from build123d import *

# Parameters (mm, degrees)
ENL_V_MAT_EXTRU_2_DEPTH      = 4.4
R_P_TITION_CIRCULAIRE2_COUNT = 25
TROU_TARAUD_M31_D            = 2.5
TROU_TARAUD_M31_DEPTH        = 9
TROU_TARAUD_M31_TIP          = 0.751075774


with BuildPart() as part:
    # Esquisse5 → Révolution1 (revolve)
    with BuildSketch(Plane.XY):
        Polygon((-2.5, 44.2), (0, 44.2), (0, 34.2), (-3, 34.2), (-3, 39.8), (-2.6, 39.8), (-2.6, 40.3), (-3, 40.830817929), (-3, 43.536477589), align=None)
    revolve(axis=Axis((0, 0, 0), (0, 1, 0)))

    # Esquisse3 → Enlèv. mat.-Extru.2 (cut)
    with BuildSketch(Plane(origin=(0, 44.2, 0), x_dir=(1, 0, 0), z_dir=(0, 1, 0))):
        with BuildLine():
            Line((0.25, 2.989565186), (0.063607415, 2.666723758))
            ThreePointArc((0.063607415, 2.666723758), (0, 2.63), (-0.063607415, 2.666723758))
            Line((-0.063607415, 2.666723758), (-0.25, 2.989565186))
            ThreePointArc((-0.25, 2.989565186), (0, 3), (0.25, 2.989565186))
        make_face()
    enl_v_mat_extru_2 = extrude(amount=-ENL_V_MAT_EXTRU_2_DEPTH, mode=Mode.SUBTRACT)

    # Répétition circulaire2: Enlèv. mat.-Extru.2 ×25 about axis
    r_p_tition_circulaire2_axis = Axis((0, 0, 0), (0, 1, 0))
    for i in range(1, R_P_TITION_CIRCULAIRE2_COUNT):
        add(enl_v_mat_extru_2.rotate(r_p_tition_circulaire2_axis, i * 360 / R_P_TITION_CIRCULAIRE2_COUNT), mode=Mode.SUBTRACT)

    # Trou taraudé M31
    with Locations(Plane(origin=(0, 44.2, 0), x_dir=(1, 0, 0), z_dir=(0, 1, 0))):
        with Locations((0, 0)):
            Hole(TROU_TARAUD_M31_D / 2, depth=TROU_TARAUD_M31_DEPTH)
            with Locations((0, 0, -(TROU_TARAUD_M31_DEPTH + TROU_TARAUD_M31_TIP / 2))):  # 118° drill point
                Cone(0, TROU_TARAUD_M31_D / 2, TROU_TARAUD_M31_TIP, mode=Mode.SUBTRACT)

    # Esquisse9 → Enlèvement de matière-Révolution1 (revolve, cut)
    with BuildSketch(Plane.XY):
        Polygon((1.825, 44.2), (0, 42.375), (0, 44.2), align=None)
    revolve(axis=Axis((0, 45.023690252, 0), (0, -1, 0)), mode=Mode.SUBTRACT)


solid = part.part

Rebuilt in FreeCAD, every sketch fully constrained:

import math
import FreeCAD as App
import Part
import Sketcher
from FreeCAD import Vector
Q = App.Units.Quantity

doc = App.newDocument("Part")
body = doc.addObject("PartDesign::Body", "Body")

# Sketch on XY plane
sketch1 = doc.addObject("Sketcher::SketchObject", "Sketch")
body.addObject(sketch1)
sketch1.AttachmentSupport = (doc.XY_Plane, [""])
sketch1.MapMode = "FlatFace"
sketch1.addGeometry(Part.LineSegment(Vector(0, 44.2, 0), Vector(-2.5, 44.2, 0)), False)
sketch1.addGeometry(Part.LineSegment(Vector(-2.5, 44.2, 0), Vector(-3, 43.54, 0)), False)
sketch1.addGeometry(Part.LineSegment(Vector(-3, 43.54, 0), Vector(-3, 40.83, 0)), False)
sketch1.addGeometry(Part.LineSegment(Vector(-3, 40.83, 0), Vector(-2.6, 40.3, 0)), False)
sketch1.addGeometry(Part.LineSegment(Vector(-2.6, 40.3, 0), Vector(-2.6, 39.8, 0)), False)
sketch1.addGeometry(Part.LineSegment(Vector(-2.6, 39.8, 0), Vector(-3, 39.8, 0)), False)
sketch1.addGeometry(Part.LineSegment(Vector(-3, 39.8, 0), Vector(-3, 34.2, 0)), False)
sketch1.addGeometry(Part.LineSegment(Vector(-3, 34.2, 0), Vector(0, 34.2, 0)), False)
sketch1.addGeometry(Part.LineSegment(Vector(0, 34.2, 0), Vector(0, 44.2, 0)), False)
sketch1.addConstraint(Sketcher.Constraint("Coincident", 0, 2, 1, 1))
sketch1.addConstraint(Sketcher.Constraint("Coincident", 1, 2, 2, 1))
sketch1.addConstraint(Sketcher.Constraint("Coincident", 2, 2, 3, 1))
sketch1.addConstraint(Sketcher.Constraint("Coincident", 3, 2, 4, 1))
sketch1.addConstraint(Sketcher.Constraint("Coincident", 4, 2, 5, 1))
sketch1.addConstraint(Sketcher.Constraint("Coincident", 5, 2, 6, 1))
sketch1.addConstraint(Sketcher.Constraint("Coincident", 6, 2, 7, 1))
sketch1.addConstraint(Sketcher.Constraint("Coincident", 7, 2, 8, 1))
sketch1.addConstraint(Sketcher.Constraint("Coincident", 8, 2, 0, 1))
sketch1.addConstraint(Sketcher.Constraint("Horizontal", 0))
sketch1.addConstraint(Sketcher.Constraint("Vertical", 2))
sketch1.addConstraint(Sketcher.Constraint("Vertical", 4))
sketch1.addConstraint(Sketcher.Constraint("Horizontal", 5))
sketch1.addConstraint(Sketcher.Constraint("Vertical", 6))
sketch1.addConstraint(Sketcher.Constraint("Horizontal", 7))
sketch1.addConstraint(Sketcher.Constraint("Vertical", 8))
sketch1.addConstraint(Sketcher.Constraint("PointOnObject", 7, 2, -2))
sketch1.addConstraint(Sketcher.Constraint("Vertical", 2, 2, 5, 2))
sketch1.addConstraint(Sketcher.Constraint("DistanceX", 7, 1, 7, 2, Q("3 mm")))
sketch1.addConstraint(Sketcher.Constraint("DistanceY", 8, 1, 8, 2, Q("10 mm")))
sketch1.addConstraint(Sketcher.Constraint("Angle", 1, Q("-127 deg")))
sketch1.addConstraint(Sketcher.Constraint("Angle", 3, Q("-53 deg")))
sketch1.addConstraint(Sketcher.Constraint("DistanceX", 0, 2, 0, 1, Q("2.5 mm")))
sketch1.addConstraint(Sketcher.Constraint("DistanceX", 5, 2, 5, 1, Q("0.4 mm")))
sketch1.addConstraint(Sketcher.Constraint("DistanceY", 4, 2, 4, 1, Q("0.5 mm")))
sketch1.addConstraint(Sketcher.Constraint("DistanceY", 6, 2, 6, 1, Q("5.6 mm")))
sketch1.addConstraint(Sketcher.Constraint("DistanceY", -1, 1, 0, 2, Q("44.2 mm")))
revolution = doc.addObject("PartDesign::Revolution", "Revolution")
body.addObject(revolution)
revolution.Profile = sketch1
revolution.ReferenceAxis = (sketch1, ["V_Axis"])
revolution.Angle = 360

# Sketch on XZ plane
sketch2 = doc.addObject("Sketcher::SketchObject", "Sketch001")
body.addObject(sketch2)
sketch2.AttachmentSupport = (doc.XZ_Plane, [""])
sketch2.MapMode = "FlatFace"
sketch2.AttachmentOffset = App.Placement(Vector(0, 0, -44.2), App.Rotation())
sketch2.addGeometry(Part.LineSegment(Vector(0.06, -2.67, 0), Vector(0.25, -2.99, 0)), False)
sketch2.addGeometry(Part.ArcOfCircle(Part.Circle(Vector(0, 0, 0), Vector(0, 0, 1), 3), math.radians(-94.78), math.radians(-85.22)), False)
sketch2.addGeometry(Part.LineSegment(Vector(-0.25, -2.99, 0), Vector(-0.06, -2.67, 0)), False)
sketch2.addGeometry(Part.ArcOfCircle(Part.Circle(Vector(0, -2.7, 0), Vector(0, 0, 1), 0.07), math.radians(30), math.radians(150)), False)
sketch2.addConstraint(Sketcher.Constraint("Coincident", 0, 2, 1, 2))
sketch2.addConstraint(Sketcher.Constraint("Coincident", 1, 1, 2, 1))
sketch2.addConstraint(Sketcher.Constraint("Tangent", 2, 2, 3, 2))
sketch2.addConstraint(Sketcher.Constraint("Tangent", 3, 1, 0, 1))
sketch2.addConstraint(Sketcher.Constraint("Coincident", 1, 3, -1, 1))
sketch2.addConstraint(Sketcher.Constraint("Symmetric", 2, 2, 3, 1, -2))
sketch2.addConstraint(Sketcher.Constraint("Radius", 1, Q("3 mm")))
sketch2.addConstraint(Sketcher.Constraint("Angle", 0, Q("-60 deg")))
sketch2.addConstraint(Sketcher.Constraint("DistanceX", 1, 1, 0, 2, Q("0.5 mm")))
sketch2.addConstraint(Sketcher.Constraint("Radius", 3, Q("0.073448 mm")))
pocket1 = doc.addObject("PartDesign::Pocket", "Pocket")
body.addObject(pocket1)
pocket1.Profile = sketch2
pocket1.Length = 4.4
pocket1.Reversed = True
doc.recompute()

polarpattern = doc.addObject("PartDesign::PolarPattern", "PolarPattern")
body.addObject(polarpattern)
polarpattern.Originals = [pocket1]
polarpattern.Axis = (doc.Y_Axis, [""])
polarpattern.Angle = 360
polarpattern.Occurrences = 25
body.Tip = polarpattern

# Sketch on XZ plane
sketch3 = doc.addObject("Sketcher::SketchObject", "Sketch002")
body.addObject(sketch3)
sketch3.AttachmentSupport = (doc.XZ_Plane, [""])
sketch3.MapMode = "FlatFace"
sketch3.AttachmentOffset = App.Placement(Vector(0, 0, -44.2), App.Rotation())
sketch3.addGeometry(Part.Circle(Vector(0, 0, 0), Vector(0, 0, 1), 1.2), False)
sketch3.addConstraint(Sketcher.Constraint("Coincident", 0, 3, -1, 1))
sketch3.addConstraint(Sketcher.Constraint("Diameter", 0, Q("2.5 mm")))
doc.recompute()
hole = doc.addObject("PartDesign::Hole", "Hole")
body.addObject(hole)
hole.Profile = sketch3
hole.ThreadType = "None"
hole.Diameter = 2.5
hole.DepthType = "Dimension"
hole.Depth = 9
hole.DrillPoint = "Angled"
hole.DrillPointAngle = 118
hole.Reversed = True

# Sketch on XY plane
sketch4 = doc.addObject("Sketcher::SketchObject", "Sketch003")
body.addObject(sketch4)
sketch4.AttachmentSupport = (doc.XY_Plane, [""])
sketch4.MapMode = "FlatFace"
sketch4.addGeometry(Part.LineSegment(Vector(0, 42.4, 0), Vector(1.8, 44.2, 0)), False)
sketch4.addGeometry(Part.LineSegment(Vector(1.8, 44.2, 0), Vector(0, 44.2, 0)), False)
sketch4.addGeometry(Part.LineSegment(Vector(0, 44.2, 0), Vector(0, 42.4, 0)), False)
sketch4.addConstraint(Sketcher.Constraint("Coincident", 0, 2, 1, 1))
sketch4.addConstraint(Sketcher.Constraint("Coincident", 1, 2, 2, 1))
sketch4.addConstraint(Sketcher.Constraint("Coincident", 2, 2, 0, 1))
sketch4.addConstraint(Sketcher.Constraint("Horizontal", 1))
sketch4.addConstraint(Sketcher.Constraint("Vertical", 2))
sketch4.addConstraint(Sketcher.Constraint("PointOnObject", 1, 2, -2))
sketch4.addConstraint(Sketcher.Constraint("Equal", 1, 2))
sketch4.addConstraint(Sketcher.Constraint("DistanceY", -1, 1, 0, 2, Q("44.2 mm")))
sketch4.addConstraint(Sketcher.Constraint("DistanceX", 1, 2, 1, 1, Q("1.825 mm")))
groove = doc.addObject("PartDesign::Groove", "Groove")
body.addObject(groove)
groove.Profile = sketch4
groove.ReferenceAxis = (sketch4, ["V_Axis"])
groove.Angle = 360

doc.recompute()
